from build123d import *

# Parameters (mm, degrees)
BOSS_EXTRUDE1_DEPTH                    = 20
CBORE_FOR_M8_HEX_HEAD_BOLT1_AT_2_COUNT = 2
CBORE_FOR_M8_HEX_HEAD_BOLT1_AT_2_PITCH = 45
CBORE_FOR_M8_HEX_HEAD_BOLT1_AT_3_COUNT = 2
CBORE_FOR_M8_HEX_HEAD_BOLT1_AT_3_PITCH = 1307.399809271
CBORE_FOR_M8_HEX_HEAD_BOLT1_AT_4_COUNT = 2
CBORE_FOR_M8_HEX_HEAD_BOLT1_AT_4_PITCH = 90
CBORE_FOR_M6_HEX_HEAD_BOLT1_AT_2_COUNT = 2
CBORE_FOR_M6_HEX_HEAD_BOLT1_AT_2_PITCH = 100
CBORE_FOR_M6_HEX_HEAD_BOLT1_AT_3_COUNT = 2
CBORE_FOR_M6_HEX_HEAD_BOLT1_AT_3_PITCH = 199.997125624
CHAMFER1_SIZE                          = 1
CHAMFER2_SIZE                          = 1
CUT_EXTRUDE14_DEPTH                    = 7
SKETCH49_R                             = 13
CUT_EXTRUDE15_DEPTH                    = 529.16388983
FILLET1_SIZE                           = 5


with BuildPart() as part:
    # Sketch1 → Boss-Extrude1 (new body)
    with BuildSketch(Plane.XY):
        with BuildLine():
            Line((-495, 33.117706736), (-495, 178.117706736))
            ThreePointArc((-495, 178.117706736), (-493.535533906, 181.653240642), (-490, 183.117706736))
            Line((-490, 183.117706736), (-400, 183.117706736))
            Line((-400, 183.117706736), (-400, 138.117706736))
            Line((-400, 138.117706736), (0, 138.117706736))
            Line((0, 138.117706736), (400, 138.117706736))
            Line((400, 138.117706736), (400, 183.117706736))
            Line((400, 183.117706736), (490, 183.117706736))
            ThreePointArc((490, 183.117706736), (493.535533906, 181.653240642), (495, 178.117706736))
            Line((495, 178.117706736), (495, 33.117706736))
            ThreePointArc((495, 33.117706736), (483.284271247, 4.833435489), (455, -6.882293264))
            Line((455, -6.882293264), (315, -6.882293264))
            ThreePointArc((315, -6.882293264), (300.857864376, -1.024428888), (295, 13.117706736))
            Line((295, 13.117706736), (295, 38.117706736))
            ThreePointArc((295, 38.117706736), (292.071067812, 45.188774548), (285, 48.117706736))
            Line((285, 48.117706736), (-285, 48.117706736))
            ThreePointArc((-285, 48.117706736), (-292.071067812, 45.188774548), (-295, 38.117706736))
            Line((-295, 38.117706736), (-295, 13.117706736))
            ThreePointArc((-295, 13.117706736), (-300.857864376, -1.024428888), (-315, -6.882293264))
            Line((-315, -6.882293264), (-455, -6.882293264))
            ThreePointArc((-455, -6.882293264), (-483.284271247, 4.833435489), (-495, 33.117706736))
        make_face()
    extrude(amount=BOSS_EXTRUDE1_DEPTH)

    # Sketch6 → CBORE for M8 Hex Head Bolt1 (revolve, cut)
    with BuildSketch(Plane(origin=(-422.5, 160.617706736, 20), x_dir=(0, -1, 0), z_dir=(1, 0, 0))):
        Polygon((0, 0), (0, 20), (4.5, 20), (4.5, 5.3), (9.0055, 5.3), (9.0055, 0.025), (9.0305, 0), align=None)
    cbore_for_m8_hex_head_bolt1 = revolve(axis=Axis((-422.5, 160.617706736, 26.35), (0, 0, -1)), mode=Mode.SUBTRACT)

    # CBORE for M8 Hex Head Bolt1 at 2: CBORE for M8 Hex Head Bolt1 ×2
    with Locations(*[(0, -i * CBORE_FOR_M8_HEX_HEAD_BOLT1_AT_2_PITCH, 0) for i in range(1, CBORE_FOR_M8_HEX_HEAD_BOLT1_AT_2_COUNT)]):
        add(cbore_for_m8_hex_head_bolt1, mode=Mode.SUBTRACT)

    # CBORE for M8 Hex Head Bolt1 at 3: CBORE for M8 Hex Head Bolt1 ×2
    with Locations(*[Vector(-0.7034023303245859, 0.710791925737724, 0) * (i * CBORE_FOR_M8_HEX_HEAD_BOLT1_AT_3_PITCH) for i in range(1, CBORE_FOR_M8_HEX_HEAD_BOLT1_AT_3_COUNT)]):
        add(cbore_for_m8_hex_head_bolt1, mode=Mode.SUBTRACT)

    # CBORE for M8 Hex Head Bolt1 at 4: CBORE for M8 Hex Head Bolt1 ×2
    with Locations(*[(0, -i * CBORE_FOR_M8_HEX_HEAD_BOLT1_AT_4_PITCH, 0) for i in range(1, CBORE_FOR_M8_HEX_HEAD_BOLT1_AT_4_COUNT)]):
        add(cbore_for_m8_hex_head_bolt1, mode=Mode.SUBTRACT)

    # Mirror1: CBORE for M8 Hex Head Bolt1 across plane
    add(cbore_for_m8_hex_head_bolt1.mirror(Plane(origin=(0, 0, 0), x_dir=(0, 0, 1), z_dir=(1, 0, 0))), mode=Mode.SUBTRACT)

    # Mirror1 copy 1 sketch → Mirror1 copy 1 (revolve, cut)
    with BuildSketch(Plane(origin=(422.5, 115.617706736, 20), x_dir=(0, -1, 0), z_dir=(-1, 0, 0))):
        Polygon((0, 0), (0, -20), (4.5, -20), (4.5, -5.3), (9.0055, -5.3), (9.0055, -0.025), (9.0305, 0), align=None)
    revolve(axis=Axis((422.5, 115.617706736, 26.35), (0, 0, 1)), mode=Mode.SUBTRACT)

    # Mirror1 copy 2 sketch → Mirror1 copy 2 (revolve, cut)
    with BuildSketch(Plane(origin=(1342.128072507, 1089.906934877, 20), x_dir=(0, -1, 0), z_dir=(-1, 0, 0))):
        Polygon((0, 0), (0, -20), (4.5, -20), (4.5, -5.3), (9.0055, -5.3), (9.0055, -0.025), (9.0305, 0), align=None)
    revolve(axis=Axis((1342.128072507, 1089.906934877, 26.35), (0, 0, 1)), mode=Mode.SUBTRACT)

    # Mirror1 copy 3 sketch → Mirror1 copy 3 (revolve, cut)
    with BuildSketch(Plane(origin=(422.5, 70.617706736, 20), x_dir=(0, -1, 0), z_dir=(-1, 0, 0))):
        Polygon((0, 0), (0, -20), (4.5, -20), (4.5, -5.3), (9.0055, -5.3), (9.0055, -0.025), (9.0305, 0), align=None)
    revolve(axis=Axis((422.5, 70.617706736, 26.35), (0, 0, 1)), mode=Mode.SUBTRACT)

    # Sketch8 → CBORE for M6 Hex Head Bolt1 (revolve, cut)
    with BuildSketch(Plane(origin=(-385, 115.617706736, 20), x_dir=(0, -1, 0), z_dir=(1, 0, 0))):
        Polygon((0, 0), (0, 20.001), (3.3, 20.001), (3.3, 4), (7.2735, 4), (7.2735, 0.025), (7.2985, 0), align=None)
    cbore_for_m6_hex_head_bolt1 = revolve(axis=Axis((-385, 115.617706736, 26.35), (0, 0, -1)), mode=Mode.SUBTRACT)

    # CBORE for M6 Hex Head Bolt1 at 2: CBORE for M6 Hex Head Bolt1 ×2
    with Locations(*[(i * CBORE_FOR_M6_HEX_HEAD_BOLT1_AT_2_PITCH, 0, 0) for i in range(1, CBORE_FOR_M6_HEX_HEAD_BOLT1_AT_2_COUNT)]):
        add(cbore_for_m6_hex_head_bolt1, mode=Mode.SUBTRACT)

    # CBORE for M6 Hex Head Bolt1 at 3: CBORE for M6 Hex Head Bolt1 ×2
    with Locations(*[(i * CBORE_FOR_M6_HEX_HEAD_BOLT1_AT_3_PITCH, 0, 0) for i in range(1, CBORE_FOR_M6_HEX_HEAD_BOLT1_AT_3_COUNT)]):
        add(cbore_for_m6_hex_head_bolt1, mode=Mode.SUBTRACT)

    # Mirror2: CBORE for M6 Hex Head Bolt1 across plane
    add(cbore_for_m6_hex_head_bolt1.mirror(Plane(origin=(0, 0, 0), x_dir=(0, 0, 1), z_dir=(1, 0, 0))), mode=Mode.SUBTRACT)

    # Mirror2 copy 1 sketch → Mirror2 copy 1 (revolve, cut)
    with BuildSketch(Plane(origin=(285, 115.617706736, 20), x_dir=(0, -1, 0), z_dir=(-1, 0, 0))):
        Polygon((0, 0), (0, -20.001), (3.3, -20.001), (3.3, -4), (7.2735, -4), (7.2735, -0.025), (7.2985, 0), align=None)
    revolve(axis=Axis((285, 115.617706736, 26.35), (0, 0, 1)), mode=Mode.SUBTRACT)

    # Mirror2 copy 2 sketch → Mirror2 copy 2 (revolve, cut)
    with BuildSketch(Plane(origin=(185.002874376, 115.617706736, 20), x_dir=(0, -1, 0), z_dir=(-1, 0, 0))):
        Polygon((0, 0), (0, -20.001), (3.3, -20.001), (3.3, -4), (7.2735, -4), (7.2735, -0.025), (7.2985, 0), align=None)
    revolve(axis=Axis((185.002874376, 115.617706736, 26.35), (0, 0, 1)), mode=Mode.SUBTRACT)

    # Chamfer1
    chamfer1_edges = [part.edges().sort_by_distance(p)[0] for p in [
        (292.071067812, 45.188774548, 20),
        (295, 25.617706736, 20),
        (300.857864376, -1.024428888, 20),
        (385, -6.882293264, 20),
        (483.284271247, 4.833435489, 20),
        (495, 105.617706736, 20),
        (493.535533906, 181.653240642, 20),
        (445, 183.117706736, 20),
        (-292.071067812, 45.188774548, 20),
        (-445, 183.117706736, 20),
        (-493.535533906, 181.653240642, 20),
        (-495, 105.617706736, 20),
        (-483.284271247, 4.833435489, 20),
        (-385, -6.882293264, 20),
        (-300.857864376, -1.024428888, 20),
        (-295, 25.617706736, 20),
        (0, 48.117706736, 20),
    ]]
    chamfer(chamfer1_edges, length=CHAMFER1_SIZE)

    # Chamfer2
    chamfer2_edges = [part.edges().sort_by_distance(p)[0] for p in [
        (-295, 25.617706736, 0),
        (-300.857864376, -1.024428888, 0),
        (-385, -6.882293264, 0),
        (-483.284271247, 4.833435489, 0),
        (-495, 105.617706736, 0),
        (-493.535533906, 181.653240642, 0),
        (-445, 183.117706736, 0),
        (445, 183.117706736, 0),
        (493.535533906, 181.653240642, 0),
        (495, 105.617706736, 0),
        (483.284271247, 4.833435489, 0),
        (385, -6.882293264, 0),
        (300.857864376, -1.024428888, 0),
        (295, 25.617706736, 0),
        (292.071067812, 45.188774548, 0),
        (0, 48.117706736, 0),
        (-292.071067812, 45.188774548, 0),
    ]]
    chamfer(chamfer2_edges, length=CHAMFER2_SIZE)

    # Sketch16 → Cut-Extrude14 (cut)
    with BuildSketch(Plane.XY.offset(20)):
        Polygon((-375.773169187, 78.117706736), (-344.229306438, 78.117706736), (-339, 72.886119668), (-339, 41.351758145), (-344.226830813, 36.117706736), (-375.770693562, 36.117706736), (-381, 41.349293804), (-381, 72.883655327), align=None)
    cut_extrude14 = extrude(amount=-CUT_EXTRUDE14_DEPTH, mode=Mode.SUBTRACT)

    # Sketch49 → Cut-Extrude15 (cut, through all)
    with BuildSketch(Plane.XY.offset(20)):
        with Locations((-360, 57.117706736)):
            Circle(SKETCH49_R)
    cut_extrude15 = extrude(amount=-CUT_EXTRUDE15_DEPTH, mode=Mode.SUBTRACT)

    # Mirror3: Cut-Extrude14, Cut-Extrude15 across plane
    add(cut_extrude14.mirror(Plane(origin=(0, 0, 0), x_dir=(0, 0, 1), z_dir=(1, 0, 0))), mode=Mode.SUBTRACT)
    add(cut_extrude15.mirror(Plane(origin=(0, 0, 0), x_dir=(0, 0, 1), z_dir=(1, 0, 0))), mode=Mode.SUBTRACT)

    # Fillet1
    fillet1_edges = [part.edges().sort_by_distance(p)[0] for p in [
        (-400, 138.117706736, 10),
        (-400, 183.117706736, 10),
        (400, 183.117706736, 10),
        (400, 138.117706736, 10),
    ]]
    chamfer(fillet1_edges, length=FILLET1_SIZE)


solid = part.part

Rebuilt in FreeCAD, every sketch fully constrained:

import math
import FreeCAD as App
import Part
import Sketcher
from FreeCAD import Vector
Q = App.Units.Quantity


def edges_at(feature, points):
    """Names of the edges that pass closest to the given points."""
    edges = feature.Shape.Edges
    near = lambda p: min(range(len(edges)), key=lambda i: edges[i].distToShape(Part.Vertex(*p))[0])
    return sorted({f"Edge{near(p) + 1}" for p in points})

doc = App.newDocument("Part")
body = doc.addObject("PartDesign::Body", "Body")

# Sketch on XY plane
sketch1 = doc.addObject("Sketcher::SketchObject", "Sketch")
body.addObject(sketch1)
sketch1.AttachmentSupport = (doc.XY_Plane, [""])
sketch1.MapMode = "FlatFace"
sketch1.addGeometry([
    Part.LineSegment(Vector(-495, 178, 0), Vector(-495, 33, 0)),  # 0
    Part.ArcOfCircle(Part.Circle(Vector(-455, 33, 0), Vector(0, 0, 1), 40), math.radians(-180), math.radians(-90)),  # 1
    Part.LineSegment(Vector(-455, -7, 0), Vector(-315, -7, 0)),  # 2
    Part.ArcOfCircle(Part.Circle(Vector(-315, 13, 0), Vector(0, 0, 1), 20), math.radians(-90), math.radians(0)),  # 3
    Part.LineSegment(Vector(-295, 13, 0), Vector(-295, 38, 0)),  # 4
    Part.ArcOfCircle(Part.Circle(Vector(-285, 38, 0), Vector(0, 0, 1), 10), math.radians(90), math.radians(180)),  # 5
    Part.LineSegment(Vector(-285, 48, 0), Vector(285, 48, 0)),  # 6
    Part.ArcOfCircle(Part.Circle(Vector(285, 38, 0), Vector(0, 0, 1), 10), math.radians(0), math.radians(90)),  # 7
    Part.LineSegment(Vector(295, 38, 0), Vector(295, 13, 0)),  # 8
    Part.ArcOfCircle(Part.Circle(Vector(315, 13, 0), Vector(0, 0, 1), 20), math.radians(180), math.radians(270)),  # 9
    Part.LineSegment(Vector(315, -7, 0), Vector(455, -7, 0)),  # 10
    Part.ArcOfCircle(Part.Circle(Vector(455, 33, 0), Vector(0, 0, 1), 40), math.radians(-90), math.radians(0)),  # 11
    Part.LineSegment(Vector(495, 33, 0), Vector(495, 178, 0)),  # 12
    Part.ArcOfCircle(Part.Circle(Vector(490, 178, 0), Vector(0, 0, 1), 5), math.radians(0), math.radians(90)),  # 13
    Part.LineSegment(Vector(490, 183, 0), Vector(400, 183, 0)),  # 14
    Part.LineSegment(Vector(400, 183, 0), Vector(400, 138, 0)),  # 15
    Part.LineSegment(Vector(400, 138, 0), Vector(-400, 138, 0)),  # 16
    Part.LineSegment(Vector(-400, 138, 0), Vector(-400, 183, 0)),  # 17
    Part.LineSegment(Vector(-400, 183, 0), Vector(-490, 183, 0)),  # 18
    Part.ArcOfCircle(Part.Circle(Vector(-490, 178, 0), Vector(0, 0, 1), 5), math.radians(90), math.radians(180)),  # 19
], False)
sketch1.addConstraint([
    Sketcher.Constraint("Tangent", 0, 2, 1, 1),
    Sketcher.Constraint("Tangent", 1, 2, 2, 1),
    Sketcher.Constraint("Tangent", 2, 2, 3, 1),
    Sketcher.Constraint("Tangent", 3, 2, 4, 1),
    Sketcher.Constraint("Tangent", 4, 2, 5, 2),
    Sketcher.Constraint("Tangent", 5, 1, 6, 1),
    Sketcher.Constraint("Tangent", 6, 2, 7, 2),
    Sketcher.Constraint("Tangent", 7, 1, 8, 1),
    Sketcher.Constraint("Tangent", 8, 2, 9, 1),
    Sketcher.Constraint("Tangent", 9, 2, 10, 1),
    Sketcher.Constraint("Tangent", 10, 2, 11, 1),
    Sketcher.Constraint("Tangent", 11, 2, 12, 1),
    Sketcher.Constraint("Tangent", 12, 2, 13, 1),
    Sketcher.Constraint("Tangent", 13, 2, 14, 1),
    Sketcher.Constraint("Coincident", 14, 2, 15, 1),
    Sketcher.Constraint("Coincident", 15, 2, 16, 1),
    Sketcher.Constraint("Coincident", 16, 2, 17, 1),
    Sketcher.Constraint("Coincident", 17, 2, 18, 1),
    Sketcher.Constraint("Tangent", 18, 2, 19, 1),
    Sketcher.Constraint("Tangent", 19, 2, 0, 1),
    Sketcher.Constraint("Vertical", 0),
    Sketcher.Constraint("Horizontal", 2),
    Sketcher.Constraint("Vertical", 4),
    Sketcher.Constraint("Horizontal", 6),
    Sketcher.Constraint("Vertical", 8),
    Sketcher.Constraint("Horizontal", 10),
    Sketcher.Constraint("Vertical", 12),
    Sketcher.Constraint("Horizontal", 14),
    Sketcher.Constraint("Vertical", 15),
    Sketcher.Constraint("Horizontal", 16),
    Sketcher.Constraint("Vertical", 17),
    Sketcher.Constraint("Horizontal", 18),
    Sketcher.Constraint("Equal", 5, 7),
    Sketcher.Constraint("Equal", 3, 9),
    Sketcher.Constraint("Equal", 1, 11),
    Sketcher.Constraint("Equal", 13, 19),
    Sketcher.Constraint("Symmetric", 3, 3, 9, 3, -2),
    Sketcher.Constraint("Symmetric", 13, 3, 19, 3, -2),
    Sketcher.Constraint("Equal", 14, 18),
    Sketcher.Constraint("Radius", 1, 40.0),
    Sketcher.Constraint("Radius", 3, 20.0),
    Sketcher.Constraint("Radius", 5, 10.0),
    Sketcher.Constraint("Radius", 13, 5.0),
    Sketcher.Constraint("DistanceX", 2, 1, 2, 2, 140.0),
    Sketcher.Constraint("DistanceX", 6, 1, 6, 2, 570.0),
    Sketcher.Constraint("DistanceX", 14, 2, 14, 1, 90.0),
    Sketcher.Constraint("DistanceY", 0, 2, 0, 1, 145.0),
    Sketcher.Constraint("DistanceY", 4, 1, 4, 2, 25.0),
    Sketcher.Constraint("DistanceY", 15, 2, 15, 1, 45.0),
    Sketcher.Constraint("DistanceY", -1, 1, 1, 3, 33.117707),
])
pad1 = doc.addObject("PartDesign::Pad", "Pad")
body.addObject(pad1)
pad1.Profile = sketch1
pad1.Length = 20

# Sketch on YZ plane
sketch2 = doc.addObject("Sketcher::SketchObject", "Sketch001")
body.addObject(sketch2)
sketch2.AttachmentSupport = (doc.YZ_Plane, [""])
sketch2.MapMode = "FlatFace"
sketch2.AttachmentOffset = App.Placement(Vector(0, 0, -422.5), App.Rotation())
sketch2.addGeometry([
    Part.LineSegment(Vector(160.617707, 0, 0), Vector(160.617707, 20, 0)),  # 0
    Part.LineSegment(Vector(160.617707, 20, 0), Vector(151.587207, 20, 0)),  # 1
    Part.LineSegment(Vector(151.587207, 20, 0), Vector(151.612207, 19.975, 0)),  # 2
    Part.LineSegment(Vector(151.612207, 19.975, 0), Vector(151.612207, 14.7, 0)),  # 3
    Part.LineSegment(Vector(151.612207, 14.7, 0), Vector(156.117707, 14.7, 0)),  # 4
    Part.LineSegment(Vector(156.117707, 14.7, 0), Vector(156.117707, 0, 0)),  # 5
    Part.LineSegment(Vector(156.117707, 0, 0), Vector(160.617707, 0, 0)),  # 6
], False)
sketch2.addGeometry(Part.LineSegment(Vector(160.617707, 20, 0), Vector(160.617707, 0, 0)), True)  # axis
sketch2.addConstraint([
    Sketcher.Constraint("Coincident", 0, 2, 1, 1),
    Sketcher.Constraint("Coincident", 1, 2, 2, 1),
    Sketcher.Constraint("Coincident", 2, 2, 3, 1),
    Sketcher.Constraint("Coincident", 3, 2, 4, 1),
    Sketcher.Constraint("Coincident", 4, 2, 5, 1),
    Sketcher.Constraint("Coincident", 5, 2, 6, 1),
    Sketcher.Constraint("Coincident", 6, 2, 0, 1),
    Sketcher.Constraint("Vertical", 0),
    Sketcher.Constraint("Horizontal", 1),
    Sketcher.Constraint("Vertical", 3),
    Sketcher.Constraint("Horizontal", 4),
    Sketcher.Constraint("Vertical", 5),
    Sketcher.Constraint("Horizontal", 6),
    Sketcher.Constraint("Vertical", 7),
    Sketcher.Constraint("Coincident", 7, 1, 0, 2),
    Sketcher.Constraint("PointOnObject", 5, 2, -1),
    Sketcher.Constraint("PointOnObject", 7, 2, -1),
    Sketcher.Constraint("DistanceY", 0, 1, 0, 2, 20.0),
    Sketcher.Constraint("Angle", 2, Q("-45 deg")),
    Sketcher.Constraint("DistanceX", 6, 1, 6, 2, 4.5),
    Sketcher.Constraint("DistanceY", 5, 2, 5, 1, 14.7),
    Sketcher.Constraint("DistanceY", 3, 2, 3, 1, 5.275),
    Sketcher.Constraint("DistanceX", 1, 2, 1, 1, 9.0305),
    Sketcher.Constraint("DistanceX", -1, 1, 0, 2, 160.617707),
])
groove = doc.addObject("PartDesign::Groove", "Groove")
body.addObject(groove)
groove.Profile = sketch2
groove.ReferenceAxis = (sketch2, ["Axis0"])
groove.Angle = 360
doc.recompute()

linearpattern = doc.addObject("PartDesign::LinearPattern", "LinearPattern")
body.addObject(linearpattern)
linearpattern.Originals = [groove]
linearpattern.Direction = (doc.Y_Axis, [""])
linearpattern.Mode = "offset"
linearpattern.Offset = 45
linearpattern.Occurrences = 2
linearpattern.Reversed = True
body.Tip = linearpattern
doc.recompute()

datumline = doc.addObject("PartDesign::Line", "DatumLine")
body.addObject(datumline)
datumline.Placement = App.Placement(Vector(0, 0, 0), App.Rotation(Vector(0, 0, 1), Vector(-0.70340233, 0.710791926, 0)))
linearpattern2 = doc.addObject("PartDesign::LinearPattern", "LinearPattern001")
body.addObject(linearpattern2)
linearpattern2.Originals = [groove]
linearpattern2.Direction = (datumline, [""])
linearpattern2.Mode = "offset"
linearpattern2.Offset = 1307.399809
linearpattern2.Occurrences = 2
body.Tip = linearpattern2
doc.recompute()

linearpattern3 = doc.addObject("PartDesign::LinearPattern", "LinearPattern002")
body.addObject(linearpattern3)
linearpattern3.Originals = [groove]
linearpattern3.Direction = (doc.Y_Axis, [""])
linearpattern3.Mode = "offset"
linearpattern3.Offset = 90
linearpattern3.Occurrences = 2
linearpattern3.Reversed = True
body.Tip = linearpattern3
doc.recompute()

mirrored = doc.addObject("PartDesign::Mirrored", "Mirrored")
body.addObject(mirrored)
mirrored.Originals = [groove]
mirrored.MirrorPlane = (doc.YZ_Plane, [""])
body.Tip = mirrored

# Sketch on YZ plane
sketch3 = doc.addObject("Sketcher::SketchObject", "Sketch002")
body.addObject(sketch3)
sketch3.AttachmentSupport = (doc.YZ_Plane, [""])
sketch3.MapMode = "FlatFace"
sketch3.AttachmentOffset = App.Placement(Vector(0, 0, 422.5), App.Rotation())
sketch3.addGeometry([
    Part.LineSegment(Vector(115.617707, 20, 0), Vector(115.617707, 0, 0)),  # 0
    Part.LineSegment(Vector(115.617707, 0, 0), Vector(111.117707, 0, 0)),  # 1
    Part.LineSegment(Vector(111.117707, 0, 0), Vector(111.117707, 14.7, 0)),  # 2
    Part.LineSegment(Vector(111.117707, 14.7, 0), Vector(106.612207, 14.7, 0)),  # 3
    Part.LineSegment(Vector(106.612207, 14.7, 0), Vector(106.612207, 19.975, 0)),  # 4
    Part.LineSegment(Vector(106.612207, 19.975, 0), Vector(106.587207, 20, 0)),  # 5
    Part.LineSegment(Vector(106.587207, 20, 0), Vector(115.617707, 20, 0)),  # 6
], False)
sketch3.addGeometry(Part.LineSegment(Vector(115.617707, 0, 0), Vector(115.617707, 20, 0)), True)  # axis
sketch3.addConstraint([
    Sketcher.Constraint("Coincident", 0, 2, 1, 1),
    Sketcher.Constraint("Coincident", 1, 2, 2, 1),
    Sketcher.Constraint("Coincident", 2, 2, 3, 1),
    Sketcher.Constraint("Coincident", 3, 2, 4, 1),
    Sketcher.Constraint("Coincident", 4, 2, 5, 1),
    Sketcher.Constraint("Coincident", 5, 2, 6, 1),
    Sketcher.Constraint("Coincident", 6, 2, 0, 1),
    Sketcher.Constraint("Vertical", 0),
    Sketcher.Constraint("Horizontal", 1),
    Sketcher.Constraint("Vertical", 2),
    Sketcher.Constraint("Horizontal", 3),
    Sketcher.Constraint("Vertical", 4),
    Sketcher.Constraint("Horizontal", 6),
    Sketcher.Constraint("Vertical", 7),
    Sketcher.Constraint("Coincident", 7, 1, 0, 2),
    Sketcher.Constraint("PointOnObject", 0, 2, -1),
    Sketcher.Constraint("Horizontal", 5, 2, 7, 2),
    Sketcher.Constraint("DistanceY", 0, 2, 0, 1, 20.0),
    Sketcher.Constraint("Angle", 5, Q("135 deg")),
    Sketcher.Constraint("DistanceX", 1, 2, 1, 1, 4.5),
    Sketcher.Constraint("DistanceY", 2, 1, 2, 2, 14.7),
    Sketcher.Constraint("DistanceY", 4, 1, 4, 2, 5.275),
    Sketcher.Constraint("DistanceX", 3, 2, 3, 1, 4.5055),
    Sketcher.Constraint("DistanceX", -1, 1, 0, 2, 115.617707),
])
groove2 = doc.addObject("PartDesign::Groove", "Groove001")
body.addObject(groove2)
groove2.Profile = sketch3
groove2.ReferenceAxis = (sketch3, ["Axis0"])
groove2.Angle = 360

# Sketch on YZ plane
sketch4 = doc.addObject("Sketcher::SketchObject", "Sketch003")
body.addObject(sketch4)
sketch4.AttachmentSupport = (doc.YZ_Plane, [""])
sketch4.MapMode = "FlatFace"
sketch4.AttachmentOffset = App.Placement(Vector(0, 0, 1342.128073), App.Rotation())
sketch4.addGeometry([
    Part.LineSegment(Vector(1089.906935, 20, 0), Vector(1089.906935, 0, 0)),  # 0
    Part.LineSegment(Vector(1089.906935, 0, 0), Vector(1085.406935, 0, 0)),  # 1
    Part.LineSegment(Vector(1085.406935, 0, 0), Vector(1085.406935, 14.7, 0)),  # 2
    Part.LineSegment(Vector(1085.406935, 14.7, 0), Vector(1080.901435, 14.7, 0)),  # 3
    Part.LineSegment(Vector(1080.901435, 14.7, 0), Vector(1080.901435, 19.975, 0)),  # 4
    Part.LineSegment(Vector(1080.901435, 19.975, 0), Vector(1080.876435, 20, 0)),  # 5
    Part.LineSegment(Vector(1080.876435, 20, 0), Vector(1089.906935, 20, 0)),  # 6
], False)
sketch4.addGeometry(Part.LineSegment(Vector(1089.906935, 0, 0), Vector(1089.906935, 20, 0)), True)  # axis
sketch4.addConstraint([
    Sketcher.Constraint("Coincident", 0, 2, 1, 1),
    Sketcher.Constraint("Coincident", 1, 2, 2, 1),
    Sketcher.Constraint("Coincident", 2, 2, 3, 1),
    Sketcher.Constraint("Coincident", 3, 2, 4, 1),
    Sketcher.Constraint("Coincident", 4, 2, 5, 1),
    Sketcher.Constraint("Coincident", 5, 2, 6, 1),
    Sketcher.Constraint("Coincident", 6, 2, 0, 1),
    Sketcher.Constraint("Vertical", 0),
    Sketcher.Constraint("Horizontal", 1),
    Sketcher.Constraint("Vertical", 2),
    Sketcher.Constraint("Horizontal", 3),
    Sketcher.Constraint("Vertical", 4),
    Sketcher.Constraint("Horizontal", 6),
    Sketcher.Constraint("Vertical", 7),
    Sketcher.Constraint("Coincident", 7, 1, 0, 2),
    Sketcher.Constraint("PointOnObject", 0, 2, -1),
    Sketcher.Constraint("Horizontal", 5, 2, 7, 2),
    Sketcher.Constraint("DistanceY", 0, 2, 0, 1, 20.0),
    Sketcher.Constraint("Angle", 5, Q("135 deg")),
    Sketcher.Constraint("DistanceX", 1, 2, 1, 1, 4.5),
    Sketcher.Constraint("DistanceY", 2, 1, 2, 2, 14.7),
    Sketcher.Constraint("DistanceY", 4, 1, 4, 2, 5.275),
    Sketcher.Constraint("DistanceX", 3, 2, 3, 1, 4.5055),
    Sketcher.Constraint("DistanceX", -1, 1, 0, 2, 1089.906935),
])
groove3 = doc.addObject("PartDesign::Groove", "Groove002")
body.addObject(groove3)
groove3.Profile = sketch4
groove3.ReferenceAxis = (sketch4, ["Axis0"])
groove3.Angle = 360

# Sketch on YZ plane
sketch5 = doc.addObject("Sketcher::SketchObject", "Sketch004")
body.addObject(sketch5)
sketch5.AttachmentSupport = (doc.YZ_Plane, [""])
sketch5.MapMode = "FlatFace"
sketch5.AttachmentOffset = App.Placement(Vector(0, 0, 422.5), App.Rotation())
sketch5.addGeometry([
    Part.LineSegment(Vector(70.618, 20, 0), Vector(70.618, 0, 0)),  # 0
    Part.LineSegment(Vector(70.618, 0, 0), Vector(66.118, 0, 0)),  # 1
    Part.LineSegment(Vector(66.118, 0, 0), Vector(66.118, 14.7, 0)),  # 2
    Part.LineSegment(Vector(66.118, 14.7, 0), Vector(61.612, 14.7, 0)),  # 3
    Part.LineSegment(Vector(61.612, 14.7, 0), Vector(61.612, 19.975, 0)),  # 4
    Part.LineSegment(Vector(61.612, 19.975, 0), Vector(61.587, 20, 0)),  # 5
    Part.LineSegment(Vector(61.587, 20, 0), Vector(70.618, 20, 0)),  # 6
], False)
sketch5.addGeometry(Part.LineSegment(Vector(70.618, 0, 0), Vector(70.618, 20, 0)), True)  # axis
sketch5.addConstraint([
    Sketcher.Constraint("Coincident", 0, 2, 1, 1),
    Sketcher.Constraint("Coincident", 1, 2, 2, 1),
    Sketcher.Constraint("Coincident", 2, 2, 3, 1),
    Sketcher.Constraint("Coincident", 3, 2, 4, 1),
    Sketcher.Constraint("Coincident", 4, 2, 5, 1),
    Sketcher.Constraint("Coincident", 5, 2, 6, 1),
    Sketcher.Constraint("Coincident", 6, 2, 0, 1),
    Sketcher.Constraint("Vertical", 0),
    Sketcher.Constraint("Horizontal", 1),
    Sketcher.Constraint("Vertical", 2),
    Sketcher.Constraint("Horizontal", 3),
    Sketcher.Constraint("Vertical", 4),
    Sketcher.Constraint("Horizontal", 6),
    Sketcher.Constraint("Vertical", 7),
    Sketcher.Constraint("Coincident", 7, 1, 0, 2),
    Sketcher.Constraint("PointOnObject", 0, 2, -1),
    Sketcher.Constraint("Horizontal", 5, 2, 7, 2),
    Sketcher.Constraint("DistanceY", 0, 2, 0, 1, 20.0),
    Sketcher.Constraint("Angle", 5, Q("135 deg")),
    Sketcher.Constraint("DistanceX", 1, 2, 1, 1, 4.5),
    Sketcher.Constraint("DistanceY", 2, 1, 2, 2, 14.7),
    Sketcher.Constraint("DistanceY", 4, 1, 4, 2, 5.275),
    Sketcher.Constraint("DistanceX", 3, 2, 3, 1, 4.5055),
    Sketcher.Constraint("DistanceX", -1, 1, 0, 2, 70.617707),
])
groove4 = doc.addObject("PartDesign::Groove", "Groove003")
body.addObject(groove4)
groove4.Profile = sketch5
groove4.ReferenceAxis = (sketch5, ["Axis0"])
groove4.Angle = 360

# Sketch on YZ plane
sketch6 = doc.addObject("Sketcher::SketchObject", "Sketch005")
body.addObject(sketch6)
sketch6.AttachmentSupport = (doc.YZ_Plane, [""])
sketch6.MapMode = "FlatFace"
sketch6.AttachmentOffset = App.Placement(Vector(0, 0, -385), App.Rotation())
sketch6.addGeometry([
    Part.LineSegment(Vector(115.617707, -0.001, 0), Vector(115.617707, 20, 0)),  # 0
    Part.LineSegment(Vector(115.617707, 20, 0), Vector(108.319207, 20, 0)),  # 1
    Part.LineSegment(Vector(108.319207, 20, 0), Vector(108.344207, 19.975, 0)),  # 2
    Part.LineSegment(Vector(108.344207, 19.975, 0), Vector(108.344207, 16, 0)),  # 3
    Part.LineSegment(Vector(108.344207, 16, 0), Vector(112.317707, 16, 0)),  # 4
    Part.LineSegment(Vector(112.317707, 16, 0), Vector(112.317707, -0.001, 0)),  # 5
    Part.LineSegment(Vector(112.317707, -0.001, 0), Vector(115.617707, -0.001, 0)),  # 6
], False)
sketch6.addGeometry(Part.LineSegment(Vector(115.617707, 20, 0), Vector(115.617707, -0.001, 0)), True)  # axis
sketch6.addConstraint([
    Sketcher.Constraint("Coincident", 0, 2, 1, 1),
    Sketcher.Constraint("Coincident", 1, 2, 2, 1),
    Sketcher.Constraint("Coincident", 2, 2, 3, 1),
    Sketcher.Constraint("Coincident", 3, 2, 4, 1),
    Sketcher.Constraint("Coincident", 4, 2, 5, 1),
    Sketcher.Constraint("Coincident", 5, 2, 6, 1),
    Sketcher.Constraint("Coincident", 6, 2, 0, 1),
    Sketcher.Constraint("Vertical", 0),
    Sketcher.Constraint("Horizontal", 1),
    Sketcher.Constraint("Vertical", 3),
    Sketcher.Constraint("Horizontal", 4),
    Sketcher.Constraint("Vertical", 5),
    Sketcher.Constraint("Horizontal", 6),
    Sketcher.Constraint("Vertical", 7),
    Sketcher.Constraint("Coincident", 7, 1, 0, 2),
    Sketcher.Constraint("Horizontal", 5, 2, 7, 2),
    Sketcher.Constraint("Angle", 2, Q("-45 deg")),
    Sketcher.Constraint("DistanceX", 6, 1, 6, 2, 3.3),
    Sketcher.Constraint("DistanceY", -1, 1, 0, 2, 20.0),
    Sketcher.Constraint("DistanceY", -1, 1, 3, 2, 16.0),
    Sketcher.Constraint("DistanceY", 0, 1, 0, 2, 20.001),
    Sketcher.Constraint("DistanceY", 3, 2, 3, 1, 3.975),
    Sketcher.Constraint("DistanceX", 1, 2, 1, 1, 7.2985),
    Sketcher.Constraint("DistanceX", -1, 1, 0, 2, 115.617707),
])
groove5 = doc.addObject("PartDesign::Groove", "Groove004")
body.addObject(groove5)
groove5.Profile = sketch6
groove5.ReferenceAxis = (sketch6, ["Axis0"])
groove5.Angle = 360
doc.recompute()

linearpattern4 = doc.addObject("PartDesign::LinearPattern", "LinearPattern003")
body.addObject(linearpattern4)
linearpattern4.Originals = [groove5]
linearpattern4.Direction = (doc.X_Axis, [""])
linearpattern4.Mode = "offset"
linearpattern4.Offset = 100
linearpattern4.Occurrences = 2
body.Tip = linearpattern4
doc.recompute()

linearpattern5 = doc.addObject("PartDesign::LinearPattern", "LinearPattern004")
body.addObject(linearpattern5)
linearpattern5.Originals = [groove5]
linearpattern5.Direction = (doc.X_Axis, [""])
linearpattern5.Mode = "offset"
linearpattern5.Offset = 199.997126
linearpattern5.Occurrences = 2
body.Tip = linearpattern5
doc.recompute()

mirrored2 = doc.addObject("PartDesign::Mirrored", "Mirrored001")
body.addObject(mirrored2)
mirrored2.Originals = [groove5]
mirrored2.MirrorPlane = (doc.YZ_Plane, [""])
body.Tip = mirrored2

# Sketch on YZ plane
sketch7 = doc.addObject("Sketcher::SketchObject", "Sketch006")
body.addObject(sketch7)
sketch7.AttachmentSupport = (doc.YZ_Plane, [""])
sketch7.MapMode = "FlatFace"
sketch7.AttachmentOffset = App.Placement(Vector(0, 0, 285), App.Rotation())
sketch7.addGeometry([
    Part.LineSegment(Vector(115.617707, 20, 0), Vector(115.617707, -0.001, 0)),  # 0
    Part.LineSegment(Vector(115.617707, -0.001, 0), Vector(112.317707, -0.001, 0)),  # 1
    Part.LineSegment(Vector(112.317707, -0.001, 0), Vector(112.317707, 16, 0)),  # 2
    Part.LineSegment(Vector(112.317707, 16, 0), Vector(108.344207, 16, 0)),  # 3
    Part.LineSegment(Vector(108.344207, 16, 0), Vector(108.344207, 19.975, 0)),  # 4
    Part.LineSegment(Vector(108.344207, 19.975, 0), Vector(108.319207, 20, 0)),  # 5
    Part.LineSegment(Vector(108.319207, 20, 0), Vector(115.617707, 20, 0)),  # 6
], False)
sketch7.addGeometry(Part.LineSegment(Vector(115.617707, -0.001, 0), Vector(115.617707, 20, 0)), True)  # axis
sketch7.addConstraint([
    Sketcher.Constraint("Coincident", 0, 2, 1, 1),
    Sketcher.Constraint("Coincident", 1, 2, 2, 1),
    Sketcher.Constraint("Coincident", 2, 2, 3, 1),
    Sketcher.Constraint("Coincident", 3, 2, 4, 1),
    Sketcher.Constraint("Coincident", 4, 2, 5, 1),
    Sketcher.Constraint("Coincident", 5, 2, 6, 1),
    Sketcher.Constraint("Coincident", 6, 2, 0, 1),
    Sketcher.Constraint("Vertical", 0),
    Sketcher.Constraint("Horizontal", 1),
    Sketcher.Constraint("Vertical", 2),
    Sketcher.Constraint("Horizontal", 3),
    Sketcher.Constraint("Vertical", 4),
    Sketcher.Constraint("Horizontal", 6),
    Sketcher.Constraint("Vertical", 7),
    Sketcher.Constraint("Coincident", 7, 1, 0, 2),
    Sketcher.Constraint("Horizontal", 5, 2, 7, 2),
    Sketcher.Constraint("Angle", 5, Q("135 deg")),
    Sketcher.Constraint("DistanceX", 1, 2, 1, 1, 3.3),
    Sketcher.Constraint("DistanceY", -1, 1, 2, 2, 16.0),
    Sketcher.Constraint("DistanceY", -1, 1, 5, 2, 20.0),
    Sketcher.Constraint("DistanceY", 0, 2, 0, 1, 20.001),
    Sketcher.Constraint("DistanceY", 4, 1, 4, 2, 3.975),
    Sketcher.Constraint("DistanceX", 3, 2, 3, 1, 3.9735),
    Sketcher.Constraint("DistanceX", -1, 1, 0, 2, 115.617707),
])
groove6 = doc.addObject("PartDesign::Groove", "Groove005")
body.addObject(groove6)
groove6.Profile = sketch7
groove6.ReferenceAxis = (sketch7, ["Axis0"])
groove6.Angle = 360

# Sketch on YZ plane
sketch8 = doc.addObject("Sketcher::SketchObject", "Sketch007")
body.addObject(sketch8)
sketch8.AttachmentSupport = (doc.YZ_Plane, [""])
sketch8.MapMode = "FlatFace"
sketch8.AttachmentOffset = App.Placement(Vector(0, 0, 185.002874), App.Rotation())
sketch8.addGeometry([
    Part.LineSegment(Vector(115.617707, 20, 0), Vector(115.617707, -0.001, 0)),  # 0
    Part.LineSegment(Vector(115.617707, -0.001, 0), Vector(112.317707, -0.001, 0)),  # 1
    Part.LineSegment(Vector(112.317707, -0.001, 0), Vector(112.317707, 16, 0)),  # 2
    Part.LineSegment(Vector(112.317707, 16, 0), Vector(108.344207, 16, 0)),  # 3
    Part.LineSegment(Vector(108.344207, 16, 0), Vector(108.344207, 19.975, 0)),  # 4
    Part.LineSegment(Vector(108.344207, 19.975, 0), Vector(108.319207, 20, 0)),  # 5
    Part.LineSegment(Vector(108.319207, 20, 0), Vector(115.617707, 20, 0)),  # 6
], False)
sketch8.addGeometry(Part.LineSegment(Vector(115.617707, -0.001, 0), Vector(115.617707, 20, 0)), True)  # axis
sketch8.addConstraint([
    Sketcher.Constraint("Coincident", 0, 2, 1, 1),
    Sketcher.Constraint("Coincident", 1, 2, 2, 1),
    Sketcher.Constraint("Coincident", 2, 2, 3, 1),
    Sketcher.Constraint("Coincident", 3, 2, 4, 1),
    Sketcher.Constraint("Coincident", 4, 2, 5, 1),
    Sketcher.Constraint("Coincident", 5, 2, 6, 1),
    Sketcher.Constraint("Coincident", 6, 2, 0, 1),
    Sketcher.Constraint("Vertical", 0),
    Sketcher.Constraint("Horizontal", 1),
    Sketcher.Constraint("Vertical", 2),
    Sketcher.Constraint("Horizontal", 3),
    Sketcher.Constraint("Vertical", 4),
    Sketcher.Constraint("Horizontal", 6),
    Sketcher.Constraint("Vertical", 7),
    Sketcher.Constraint("Coincident", 7, 1, 0, 2),
    Sketcher.Constraint("Horizontal", 5, 2, 7, 2),
    Sketcher.Constraint("Angle", 5, Q("135 deg")),
    Sketcher.Constraint("DistanceX", 1, 2, 1, 1, 3.3),
    Sketcher.Constraint("DistanceY", -1, 1, 2, 2, 16.0),
    Sketcher.Constraint("DistanceY", -1, 1, 5, 2, 20.0),
    Sketcher.Constraint("DistanceY", 0, 2, 0, 1, 20.001),
    Sketcher.Constraint("DistanceY", 4, 1, 4, 2, 3.975),
    Sketcher.Constraint("DistanceX", 3, 2, 3, 1, 3.9735),
    Sketcher.Constraint("DistanceX", -1, 1, 0, 2, 115.617707),
])
groove7 = doc.addObject("PartDesign::Groove", "Groove006")
body.addObject(groove7)
groove7.Profile = sketch8
groove7.ReferenceAxis = (sketch8, ["Axis0"])
groove7.Angle = 360
doc.recompute()

chamfer = doc.addObject("PartDesign::Chamfer", "Chamfer")
body.addObject(chamfer)
chamfer.Base = (groove7, edges_at(groove7, [
    (292.071, 45.189, 20),
    (295, 25.618, 20),
    (300.858, -1.024, 20),
    (385, -6.882, 20),
    (483.284, 4.833, 20),
    (495, 105.618, 20),
    (493.536, 181.653, 20),
    (445, 183.118, 20),
    (-292.071, 45.189, 20),
    (-445, 183.118, 20),
    (-493.536, 181.653, 20),
    (-495, 105.618, 20),
    (-483.284, 4.833, 20),
    (-385, -6.882, 20),
    (-300.858, -1.024, 20),
    (-295, 25.618, 20),
    (0, 48.118, 20),
]))
chamfer.Size = 1
doc.recompute()

chamfer2 = doc.addObject("PartDesign::Chamfer", "Chamfer001")
body.addObject(chamfer2)
chamfer2.Base = (chamfer, edges_at(chamfer, [
    (-295, 25.618, 0),
    (-300.858, -1.024, 0),
    (-385, -6.882, 0),
    (-483.284, 4.833, 0),
    (-495, 105.618, 0),
    (-493.536, 181.653, 0),
    (-445, 183.118, 0),
    (445, 183.118, 0),
    (493.536, 181.653, 0),
    (495, 105.618, 0),
    (483.284, 4.833, 0),
    (385, -6.882, 0),
    (300.858, -1.024, 0),
    (295, 25.618, 0),
    (292.071, 45.189, 0),
    (0, 48.118, 0),
    (-292.071, 45.189, 0),
]))
chamfer2.Size = 1

# Sketch on XY plane
sketch9 = doc.addObject("Sketcher::SketchObject", "Sketch008")
body.addObject(sketch9)
sketch9.AttachmentSupport = (doc.XY_Plane, [""])
sketch9.MapMode = "FlatFace"
sketch9.AttachmentOffset = App.Placement(Vector(0, 0, 20), App.Rotation())
sketch9.addGeometry([
    Part.LineSegment(Vector(-344, 78, 0), Vector(-376, 78, 0)),  # 0
    Part.LineSegment(Vector(-376, 78, 0), Vector(-381, 73, 0)),  # 1
    Part.LineSegment(Vector(-381, 73, 0), Vector(-381, 41, 0)),  # 2
    Part.LineSegment(Vector(-381, 41, 0), Vector(-376, 36, 0)),  # 3
    Part.LineSegment(Vector(-376, 36, 0), Vector(-344, 36, 0)),  # 4
    Part.LineSegment(Vector(-344, 36, 0), Vector(-339, 41, 0)),  # 5
    Part.LineSegment(Vector(-339, 41, 0), Vector(-339, 73, 0)),  # 6
    Part.LineSegment(Vector(-339, 73, 0), Vector(-344, 78, 0)),  # 7
], False)
sketch9.addConstraint([
    Sketcher.Constraint("Coincident", 0, 2, 1, 1),
    Sketcher.Constraint("Coincident", 1, 2, 2, 1),
    Sketcher.Constraint("Coincident", 2, 2, 3, 1),
    Sketcher.Constraint("Coincident", 3, 2, 4, 1),
    Sketcher.Constraint("Coincident", 4, 2, 5, 1),
    Sketcher.Constraint("Coincident", 5, 2, 6, 1),
    Sketcher.Constraint("Coincident", 6, 2, 7, 1),
    Sketcher.Constraint("Coincident", 7, 2, 0, 1),
    Sketcher.Constraint("Horizontal", 0),
    Sketcher.Constraint("Vertical", 2),
    Sketcher.Constraint("Horizontal", 4),
    Sketcher.Constraint("Vertical", 6),
    Sketcher.Constraint("Parallel", 1, 5),
    Sketcher.Constraint("Parallel", 3, 7),
    Sketcher.Constraint("Equal", 0, 4),
    Sketcher.Constraint("Equal", 2, 6),
    Sketcher.Constraint("DistanceX", 1, 2, -1, 1, 381.0),
    Sketcher.Constraint("DistanceX", 5, 2, -1, 1, 339.0),
    Sketcher.Constraint("DistanceY", 3, 2, 0, 2, 42.0),
    Sketcher.Constraint("DistanceY", 2, 2, 2, 1, 31.534362),
    Sketcher.Constraint("Distance", 3, 7.396969),
    Sketcher.Constraint("DistanceX", 0, 2, 0, 1, 31.543863),
    Sketcher.Constraint("DistanceX", 0, 2, -1, 1, 375.773169),
    Sketcher.Constraint("DistanceY", -1, 1, 5, 2, 41.351758),
])
pocket1 = doc.addObject("PartDesign::Pocket", "Pocket")
body.addObject(pocket1)
pocket1.Profile = sketch9
pocket1.Length = 7

# Sketch on XY plane
sketch10 = doc.addObject("Sketcher::SketchObject", "Sketch009")
body.addObject(sketch10)
sketch10.AttachmentSupport = (doc.XY_Plane, [""])
sketch10.MapMode = "FlatFace"
sketch10.AttachmentOffset = App.Placement(Vector(0, 0, 20), App.Rotation())
sketch10.addGeometry(Part.Circle(Vector(-360, 57, 0), Vector(0, 0, 1), 13), False)
sketch10.addConstraint([
    Sketcher.Constraint("Diameter", 0, 26.0),
    Sketcher.Constraint("DistanceX", 0, 3, -1, 1, 360.0),
    Sketcher.Constraint("DistanceY", -1, 1, 0, 3, 57.117707),
])
pocket2 = doc.addObject("PartDesign::Pocket", "Pocket001")
body.addObject(pocket2)
pocket2.Profile = sketch10
pocket2.Type = "ThroughAll"
doc.recompute()

mirrored3 = doc.addObject("PartDesign::Mirrored", "Mirrored002")
body.addObject(mirrored3)
mirrored3.Originals = [pocket1, pocket2]
mirrored3.MirrorPlane = (doc.YZ_Plane, [""])
body.Tip = mirrored3
doc.recompute()

chamfer3 = doc.addObject("PartDesign::Chamfer", "Chamfer002")
body.addObject(chamfer3)
chamfer3.Base = (mirrored3, edges_at(mirrored3, [
    (-400, 138.118, 10),
    (-400, 183.118, 10),
    (400, 183.118, 10),
    (400, 138.118, 10),
]))
chamfer3.Size = 5

doc.recompute()
